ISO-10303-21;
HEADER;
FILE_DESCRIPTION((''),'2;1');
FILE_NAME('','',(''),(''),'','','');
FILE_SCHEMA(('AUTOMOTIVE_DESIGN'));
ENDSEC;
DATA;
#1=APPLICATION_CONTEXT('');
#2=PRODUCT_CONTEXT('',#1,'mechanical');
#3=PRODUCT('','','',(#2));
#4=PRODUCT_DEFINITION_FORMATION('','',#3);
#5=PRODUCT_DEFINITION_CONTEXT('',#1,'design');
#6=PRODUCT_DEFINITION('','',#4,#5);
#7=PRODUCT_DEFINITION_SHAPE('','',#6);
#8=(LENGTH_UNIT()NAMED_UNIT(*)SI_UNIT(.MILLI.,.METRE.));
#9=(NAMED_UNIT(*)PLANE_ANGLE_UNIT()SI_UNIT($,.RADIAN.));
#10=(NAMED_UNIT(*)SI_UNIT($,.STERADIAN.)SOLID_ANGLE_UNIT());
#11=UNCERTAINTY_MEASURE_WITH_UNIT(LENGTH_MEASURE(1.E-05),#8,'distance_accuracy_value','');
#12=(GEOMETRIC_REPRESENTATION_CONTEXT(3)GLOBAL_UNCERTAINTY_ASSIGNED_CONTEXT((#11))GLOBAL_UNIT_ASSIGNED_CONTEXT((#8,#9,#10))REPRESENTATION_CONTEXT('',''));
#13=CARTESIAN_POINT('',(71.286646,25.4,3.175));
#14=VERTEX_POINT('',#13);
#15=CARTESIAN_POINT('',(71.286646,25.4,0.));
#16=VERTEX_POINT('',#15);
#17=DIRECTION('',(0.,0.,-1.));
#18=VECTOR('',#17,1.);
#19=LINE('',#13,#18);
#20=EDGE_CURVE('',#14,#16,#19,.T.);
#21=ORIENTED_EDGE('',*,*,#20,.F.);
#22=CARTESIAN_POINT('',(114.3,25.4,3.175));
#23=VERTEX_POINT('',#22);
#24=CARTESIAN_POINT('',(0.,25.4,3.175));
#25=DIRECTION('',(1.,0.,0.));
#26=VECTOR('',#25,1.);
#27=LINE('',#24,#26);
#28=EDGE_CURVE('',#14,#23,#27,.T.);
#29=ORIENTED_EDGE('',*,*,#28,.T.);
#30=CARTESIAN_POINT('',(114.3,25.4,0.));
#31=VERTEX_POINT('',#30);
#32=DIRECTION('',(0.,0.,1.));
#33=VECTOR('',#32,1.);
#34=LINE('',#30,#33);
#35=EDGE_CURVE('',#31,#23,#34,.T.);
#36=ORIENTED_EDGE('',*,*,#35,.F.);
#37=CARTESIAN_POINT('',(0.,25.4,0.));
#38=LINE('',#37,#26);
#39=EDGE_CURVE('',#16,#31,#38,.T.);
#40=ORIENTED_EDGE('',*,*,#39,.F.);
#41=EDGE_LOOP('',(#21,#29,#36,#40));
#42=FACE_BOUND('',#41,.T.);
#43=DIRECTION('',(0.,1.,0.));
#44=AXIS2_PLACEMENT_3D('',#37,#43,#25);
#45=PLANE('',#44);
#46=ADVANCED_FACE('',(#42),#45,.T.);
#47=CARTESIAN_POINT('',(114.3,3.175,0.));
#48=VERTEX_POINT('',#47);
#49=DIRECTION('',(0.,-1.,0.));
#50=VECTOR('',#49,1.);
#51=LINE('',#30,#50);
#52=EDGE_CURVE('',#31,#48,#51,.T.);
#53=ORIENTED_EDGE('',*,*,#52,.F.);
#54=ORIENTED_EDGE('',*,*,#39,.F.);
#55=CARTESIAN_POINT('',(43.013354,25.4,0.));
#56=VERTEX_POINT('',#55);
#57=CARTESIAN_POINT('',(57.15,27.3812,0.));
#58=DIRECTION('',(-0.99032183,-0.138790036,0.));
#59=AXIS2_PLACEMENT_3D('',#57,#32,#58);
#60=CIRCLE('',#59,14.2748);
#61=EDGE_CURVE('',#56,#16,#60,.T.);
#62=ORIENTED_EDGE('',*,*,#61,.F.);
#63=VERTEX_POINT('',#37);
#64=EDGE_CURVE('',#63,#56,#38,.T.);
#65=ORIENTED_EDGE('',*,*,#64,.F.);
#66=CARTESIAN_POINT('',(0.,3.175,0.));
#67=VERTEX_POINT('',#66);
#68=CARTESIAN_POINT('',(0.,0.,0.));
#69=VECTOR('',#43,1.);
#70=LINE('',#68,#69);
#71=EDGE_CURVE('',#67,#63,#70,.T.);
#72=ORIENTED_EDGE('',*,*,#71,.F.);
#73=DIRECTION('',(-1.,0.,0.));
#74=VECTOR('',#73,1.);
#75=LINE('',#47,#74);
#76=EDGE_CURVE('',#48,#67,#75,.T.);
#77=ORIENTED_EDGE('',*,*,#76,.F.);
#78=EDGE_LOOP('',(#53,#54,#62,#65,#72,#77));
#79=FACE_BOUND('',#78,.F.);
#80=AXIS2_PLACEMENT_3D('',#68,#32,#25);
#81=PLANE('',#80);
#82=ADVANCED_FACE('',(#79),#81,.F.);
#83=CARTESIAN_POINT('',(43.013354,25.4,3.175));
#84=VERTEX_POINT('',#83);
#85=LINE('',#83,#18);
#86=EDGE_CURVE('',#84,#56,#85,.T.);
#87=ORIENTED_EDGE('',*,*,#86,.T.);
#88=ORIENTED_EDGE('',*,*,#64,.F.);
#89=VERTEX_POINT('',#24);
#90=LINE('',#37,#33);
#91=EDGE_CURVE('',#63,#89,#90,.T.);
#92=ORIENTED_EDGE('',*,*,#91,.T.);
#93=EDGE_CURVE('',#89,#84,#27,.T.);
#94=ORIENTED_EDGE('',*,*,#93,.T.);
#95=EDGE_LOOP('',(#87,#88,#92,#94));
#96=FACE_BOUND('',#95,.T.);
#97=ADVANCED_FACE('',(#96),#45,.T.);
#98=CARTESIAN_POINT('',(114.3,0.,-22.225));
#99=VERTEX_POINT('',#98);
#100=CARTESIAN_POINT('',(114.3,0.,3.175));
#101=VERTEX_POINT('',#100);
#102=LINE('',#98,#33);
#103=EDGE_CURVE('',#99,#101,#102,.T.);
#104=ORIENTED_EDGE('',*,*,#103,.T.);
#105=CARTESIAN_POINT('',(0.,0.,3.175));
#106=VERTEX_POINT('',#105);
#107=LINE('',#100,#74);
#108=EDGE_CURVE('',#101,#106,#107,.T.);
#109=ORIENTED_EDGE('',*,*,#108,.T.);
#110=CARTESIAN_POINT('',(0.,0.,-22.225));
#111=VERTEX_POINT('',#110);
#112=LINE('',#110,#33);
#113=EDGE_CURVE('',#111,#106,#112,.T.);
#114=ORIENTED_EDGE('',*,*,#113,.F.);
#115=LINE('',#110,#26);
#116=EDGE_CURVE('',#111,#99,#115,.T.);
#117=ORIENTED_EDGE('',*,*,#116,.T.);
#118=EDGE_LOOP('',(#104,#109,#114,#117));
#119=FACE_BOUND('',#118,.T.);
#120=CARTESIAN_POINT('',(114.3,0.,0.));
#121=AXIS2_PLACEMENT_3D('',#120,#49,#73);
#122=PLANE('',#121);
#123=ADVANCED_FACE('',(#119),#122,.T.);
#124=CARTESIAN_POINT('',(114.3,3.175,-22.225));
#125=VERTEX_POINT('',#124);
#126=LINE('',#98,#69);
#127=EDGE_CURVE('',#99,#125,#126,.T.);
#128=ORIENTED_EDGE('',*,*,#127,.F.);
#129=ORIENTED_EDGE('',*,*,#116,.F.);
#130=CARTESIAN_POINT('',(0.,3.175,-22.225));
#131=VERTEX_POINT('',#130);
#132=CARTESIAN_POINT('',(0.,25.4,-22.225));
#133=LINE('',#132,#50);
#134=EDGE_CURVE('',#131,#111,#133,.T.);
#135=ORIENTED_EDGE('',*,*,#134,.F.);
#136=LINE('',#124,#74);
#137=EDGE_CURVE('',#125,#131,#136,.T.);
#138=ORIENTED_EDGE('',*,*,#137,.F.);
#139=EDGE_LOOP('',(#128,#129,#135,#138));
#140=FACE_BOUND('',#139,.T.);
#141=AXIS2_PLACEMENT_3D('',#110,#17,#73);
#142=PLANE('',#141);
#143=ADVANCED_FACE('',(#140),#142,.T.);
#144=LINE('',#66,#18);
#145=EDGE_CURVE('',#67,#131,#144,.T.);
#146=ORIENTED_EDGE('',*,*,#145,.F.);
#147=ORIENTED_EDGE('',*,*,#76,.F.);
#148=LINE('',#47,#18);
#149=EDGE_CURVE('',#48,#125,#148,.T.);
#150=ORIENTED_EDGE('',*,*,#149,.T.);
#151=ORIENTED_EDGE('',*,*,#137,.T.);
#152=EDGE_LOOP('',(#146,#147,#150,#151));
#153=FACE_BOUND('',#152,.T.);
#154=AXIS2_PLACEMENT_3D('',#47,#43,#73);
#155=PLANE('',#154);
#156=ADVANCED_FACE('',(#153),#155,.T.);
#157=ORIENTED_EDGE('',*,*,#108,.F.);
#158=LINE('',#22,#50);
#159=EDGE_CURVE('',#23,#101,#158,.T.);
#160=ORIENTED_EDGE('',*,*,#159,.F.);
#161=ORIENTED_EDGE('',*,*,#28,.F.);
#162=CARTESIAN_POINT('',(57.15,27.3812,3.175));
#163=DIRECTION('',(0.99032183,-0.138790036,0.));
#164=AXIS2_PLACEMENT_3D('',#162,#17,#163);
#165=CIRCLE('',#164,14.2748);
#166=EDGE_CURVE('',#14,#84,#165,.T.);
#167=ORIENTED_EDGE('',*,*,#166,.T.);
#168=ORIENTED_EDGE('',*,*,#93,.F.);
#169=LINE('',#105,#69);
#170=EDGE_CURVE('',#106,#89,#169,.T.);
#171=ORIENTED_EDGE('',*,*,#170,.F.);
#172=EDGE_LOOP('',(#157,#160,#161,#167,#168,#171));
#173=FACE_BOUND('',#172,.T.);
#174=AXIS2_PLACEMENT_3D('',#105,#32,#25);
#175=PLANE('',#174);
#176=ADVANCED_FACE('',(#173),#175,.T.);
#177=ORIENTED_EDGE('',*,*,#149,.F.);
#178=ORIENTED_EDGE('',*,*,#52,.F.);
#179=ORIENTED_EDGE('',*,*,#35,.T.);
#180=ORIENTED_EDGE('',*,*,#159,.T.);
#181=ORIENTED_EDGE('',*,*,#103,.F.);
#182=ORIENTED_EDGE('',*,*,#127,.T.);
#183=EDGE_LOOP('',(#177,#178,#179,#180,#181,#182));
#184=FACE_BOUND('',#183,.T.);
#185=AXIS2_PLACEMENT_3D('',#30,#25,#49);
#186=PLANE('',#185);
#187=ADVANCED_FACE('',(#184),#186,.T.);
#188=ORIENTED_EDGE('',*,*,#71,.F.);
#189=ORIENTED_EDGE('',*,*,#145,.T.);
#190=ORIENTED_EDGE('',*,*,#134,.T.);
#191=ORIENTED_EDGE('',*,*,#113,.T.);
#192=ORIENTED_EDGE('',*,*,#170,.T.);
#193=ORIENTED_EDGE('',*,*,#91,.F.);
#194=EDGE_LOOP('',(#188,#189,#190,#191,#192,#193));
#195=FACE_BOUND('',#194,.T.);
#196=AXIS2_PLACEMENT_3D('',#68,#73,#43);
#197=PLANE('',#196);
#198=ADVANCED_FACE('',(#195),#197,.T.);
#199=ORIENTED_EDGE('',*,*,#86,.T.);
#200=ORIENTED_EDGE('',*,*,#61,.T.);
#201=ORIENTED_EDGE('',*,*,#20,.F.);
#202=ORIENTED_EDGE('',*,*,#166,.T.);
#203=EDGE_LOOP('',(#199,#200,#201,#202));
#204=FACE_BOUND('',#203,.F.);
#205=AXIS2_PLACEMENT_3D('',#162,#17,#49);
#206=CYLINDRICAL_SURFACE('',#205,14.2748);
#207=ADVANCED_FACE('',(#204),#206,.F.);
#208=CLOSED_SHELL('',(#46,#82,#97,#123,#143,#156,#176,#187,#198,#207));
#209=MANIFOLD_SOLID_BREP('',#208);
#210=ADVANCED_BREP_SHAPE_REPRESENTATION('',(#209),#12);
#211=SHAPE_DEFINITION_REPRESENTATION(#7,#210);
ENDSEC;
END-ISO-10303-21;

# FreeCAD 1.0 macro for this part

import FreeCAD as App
import Part
import Sketcher

V = App.Vector
Q = App.Units.Quantity

doc = App.newDocument("Part")
body = doc.addObject("PartDesign::Body", "Body")

sketch1 = body.newObject("Sketcher::SketchObject", "Sketch")
sketch1.AttachmentSupport = (doc.getObject("XY_Plane"), [""])
sketch1.MapMode = "FlatFace"
sketch1.addGeometry(Part.LineSegment(V(0, 25.4, 0), V(0, 0, 0)), False)
sketch1.addGeometry(Part.LineSegment(V(0, 0, 0), V(114.3, 0, 0)), False)
sketch1.addGeometry(Part.LineSegment(V(114.3, 0, 0), V(114.3, 25.4, 0)), False)
sketch1.addGeometry(Part.LineSegment(V(114.3, 25.4, 0), V(0, 25.4, 0)), False)
sketch1.addConstraint(Sketcher.Constraint("Coincident", 0, 2, 1, 1))
sketch1.addConstraint(Sketcher.Constraint("Coincident", 1, 2, 2, 1))
sketch1.addConstraint(Sketcher.Constraint("Coincident", 2, 2, 3, 1))
sketch1.addConstraint(Sketcher.Constraint("Coincident", 3, 2, 0, 1))
sketch1.addConstraint(Sketcher.Constraint("Vertical", 0))
sketch1.addConstraint(Sketcher.Constraint("Horizontal", 1))
sketch1.addConstraint(Sketcher.Constraint("Vertical", 2))
sketch1.addConstraint(Sketcher.Constraint("Horizontal", 3))
sketch1.addConstraint(Sketcher.Constraint("Coincident", 0, 2, -1, 1))
sketch1.addConstraint(Sketcher.Constraint("DistanceY", 0, 2, 0, 1, Q("1 in")))
sketch1.addConstraint(Sketcher.Constraint("DistanceX", 1, 1, 1, 2, Q("4.5 in")))
pad1 = body.newObject("PartDesign::Pad", "Pad")
pad1.Profile = sketch1
pad1.Length = Q("0.125 in")

sketch2 = body.newObject("Sketcher::SketchObject", "Sketch001")
sketch2.AttachmentSupport = (doc.getObject("XY_Plane"), [""])
sketch2.MapMode = "FlatFace"
sketch2.addGeometry(Part.LineSegment(V(114.3, 3.175, 0), V(114.3, 0, 0)), False)
sketch2.addGeometry(Part.LineSegment(V(114.3, 0, 0), V(0, 0, 0)), False)
sketch2.addGeometry(Part.LineSegment(V(0, 0, 0), V(0, 3.175, 0)), False)
sketch2.addGeometry(Part.LineSegment(V(0, 3.175, 0), V(114.3, 3.175, 0)), False)
sketch2.addConstraint(Sketcher.Constraint("Coincident", 0, 2, 1, 1))
sketch2.addConstraint(Sketcher.Constraint("Coincident", 1, 2, 2, 1))
sketch2.addConstraint(Sketcher.Constraint("Coincident", 2, 2, 3, 1))
sketch2.addConstraint(Sketcher.Constraint("Coincident", 3, 2, 0, 1))
sketch2.addConstraint(Sketcher.Constraint("Vertical", 0))
sketch2.addConstraint(Sketcher.Constraint("Horizontal", 1))
sketch2.addConstraint(Sketcher.Constraint("Vertical", 2))
sketch2.addConstraint(Sketcher.Constraint("Horizontal", 3))
sketch2.addConstraint(Sketcher.Constraint("Coincident", 1, 2, -1, 1))
sketch2.addConstraint(Sketcher.Constraint("DistanceY", 0, 2, 0, 1, Q("0.125 in")))
sketch2.addConstraint(Sketcher.Constraint("DistanceX", 1, 2, 1, 1, Q("4.5 in")))
pad2 = body.newObject("PartDesign::Pad", "Pad001")
pad2.Profile = sketch2
pad2.Length = Q("0.875 in")
pad2.Reversed = True

sketch3 = body.newObject("Sketcher::SketchObject", "Sketch002")
sketch3.AttachmentSupport = (doc.getObject("XY_Plane"), [""])
sketch3.MapMode = "FlatFace"
sketch3.AttachmentOffset = App.Placement(V(0, 0, 0.125 * 25.4), App.Rotation())
sketch3.addGeometry(Part.Circle(V(57.15, 27.3812, 0), V(0, 0, 1), 14.2748), False)
sketch3.addConstraint(Sketcher.Constraint("Diameter", 0, Q("1.124 in")))
sketch3.addConstraint(Sketcher.Constraint("DistanceX", -1, 1, 0, 3, Q("2.25 in")))
sketch3.addConstraint(Sketcher.Constraint("DistanceY", -1, 1, 0, 3, Q("1.078 in")))
doc.recompute()
hole = body.newObject("PartDesign::Hole", "Hole")
hole.Profile = sketch3
hole.ThreadType = "None"
hole.Diameter = Q("1.124 in")
hole.DepthType = "ThroughAll"

doc.recompute()
